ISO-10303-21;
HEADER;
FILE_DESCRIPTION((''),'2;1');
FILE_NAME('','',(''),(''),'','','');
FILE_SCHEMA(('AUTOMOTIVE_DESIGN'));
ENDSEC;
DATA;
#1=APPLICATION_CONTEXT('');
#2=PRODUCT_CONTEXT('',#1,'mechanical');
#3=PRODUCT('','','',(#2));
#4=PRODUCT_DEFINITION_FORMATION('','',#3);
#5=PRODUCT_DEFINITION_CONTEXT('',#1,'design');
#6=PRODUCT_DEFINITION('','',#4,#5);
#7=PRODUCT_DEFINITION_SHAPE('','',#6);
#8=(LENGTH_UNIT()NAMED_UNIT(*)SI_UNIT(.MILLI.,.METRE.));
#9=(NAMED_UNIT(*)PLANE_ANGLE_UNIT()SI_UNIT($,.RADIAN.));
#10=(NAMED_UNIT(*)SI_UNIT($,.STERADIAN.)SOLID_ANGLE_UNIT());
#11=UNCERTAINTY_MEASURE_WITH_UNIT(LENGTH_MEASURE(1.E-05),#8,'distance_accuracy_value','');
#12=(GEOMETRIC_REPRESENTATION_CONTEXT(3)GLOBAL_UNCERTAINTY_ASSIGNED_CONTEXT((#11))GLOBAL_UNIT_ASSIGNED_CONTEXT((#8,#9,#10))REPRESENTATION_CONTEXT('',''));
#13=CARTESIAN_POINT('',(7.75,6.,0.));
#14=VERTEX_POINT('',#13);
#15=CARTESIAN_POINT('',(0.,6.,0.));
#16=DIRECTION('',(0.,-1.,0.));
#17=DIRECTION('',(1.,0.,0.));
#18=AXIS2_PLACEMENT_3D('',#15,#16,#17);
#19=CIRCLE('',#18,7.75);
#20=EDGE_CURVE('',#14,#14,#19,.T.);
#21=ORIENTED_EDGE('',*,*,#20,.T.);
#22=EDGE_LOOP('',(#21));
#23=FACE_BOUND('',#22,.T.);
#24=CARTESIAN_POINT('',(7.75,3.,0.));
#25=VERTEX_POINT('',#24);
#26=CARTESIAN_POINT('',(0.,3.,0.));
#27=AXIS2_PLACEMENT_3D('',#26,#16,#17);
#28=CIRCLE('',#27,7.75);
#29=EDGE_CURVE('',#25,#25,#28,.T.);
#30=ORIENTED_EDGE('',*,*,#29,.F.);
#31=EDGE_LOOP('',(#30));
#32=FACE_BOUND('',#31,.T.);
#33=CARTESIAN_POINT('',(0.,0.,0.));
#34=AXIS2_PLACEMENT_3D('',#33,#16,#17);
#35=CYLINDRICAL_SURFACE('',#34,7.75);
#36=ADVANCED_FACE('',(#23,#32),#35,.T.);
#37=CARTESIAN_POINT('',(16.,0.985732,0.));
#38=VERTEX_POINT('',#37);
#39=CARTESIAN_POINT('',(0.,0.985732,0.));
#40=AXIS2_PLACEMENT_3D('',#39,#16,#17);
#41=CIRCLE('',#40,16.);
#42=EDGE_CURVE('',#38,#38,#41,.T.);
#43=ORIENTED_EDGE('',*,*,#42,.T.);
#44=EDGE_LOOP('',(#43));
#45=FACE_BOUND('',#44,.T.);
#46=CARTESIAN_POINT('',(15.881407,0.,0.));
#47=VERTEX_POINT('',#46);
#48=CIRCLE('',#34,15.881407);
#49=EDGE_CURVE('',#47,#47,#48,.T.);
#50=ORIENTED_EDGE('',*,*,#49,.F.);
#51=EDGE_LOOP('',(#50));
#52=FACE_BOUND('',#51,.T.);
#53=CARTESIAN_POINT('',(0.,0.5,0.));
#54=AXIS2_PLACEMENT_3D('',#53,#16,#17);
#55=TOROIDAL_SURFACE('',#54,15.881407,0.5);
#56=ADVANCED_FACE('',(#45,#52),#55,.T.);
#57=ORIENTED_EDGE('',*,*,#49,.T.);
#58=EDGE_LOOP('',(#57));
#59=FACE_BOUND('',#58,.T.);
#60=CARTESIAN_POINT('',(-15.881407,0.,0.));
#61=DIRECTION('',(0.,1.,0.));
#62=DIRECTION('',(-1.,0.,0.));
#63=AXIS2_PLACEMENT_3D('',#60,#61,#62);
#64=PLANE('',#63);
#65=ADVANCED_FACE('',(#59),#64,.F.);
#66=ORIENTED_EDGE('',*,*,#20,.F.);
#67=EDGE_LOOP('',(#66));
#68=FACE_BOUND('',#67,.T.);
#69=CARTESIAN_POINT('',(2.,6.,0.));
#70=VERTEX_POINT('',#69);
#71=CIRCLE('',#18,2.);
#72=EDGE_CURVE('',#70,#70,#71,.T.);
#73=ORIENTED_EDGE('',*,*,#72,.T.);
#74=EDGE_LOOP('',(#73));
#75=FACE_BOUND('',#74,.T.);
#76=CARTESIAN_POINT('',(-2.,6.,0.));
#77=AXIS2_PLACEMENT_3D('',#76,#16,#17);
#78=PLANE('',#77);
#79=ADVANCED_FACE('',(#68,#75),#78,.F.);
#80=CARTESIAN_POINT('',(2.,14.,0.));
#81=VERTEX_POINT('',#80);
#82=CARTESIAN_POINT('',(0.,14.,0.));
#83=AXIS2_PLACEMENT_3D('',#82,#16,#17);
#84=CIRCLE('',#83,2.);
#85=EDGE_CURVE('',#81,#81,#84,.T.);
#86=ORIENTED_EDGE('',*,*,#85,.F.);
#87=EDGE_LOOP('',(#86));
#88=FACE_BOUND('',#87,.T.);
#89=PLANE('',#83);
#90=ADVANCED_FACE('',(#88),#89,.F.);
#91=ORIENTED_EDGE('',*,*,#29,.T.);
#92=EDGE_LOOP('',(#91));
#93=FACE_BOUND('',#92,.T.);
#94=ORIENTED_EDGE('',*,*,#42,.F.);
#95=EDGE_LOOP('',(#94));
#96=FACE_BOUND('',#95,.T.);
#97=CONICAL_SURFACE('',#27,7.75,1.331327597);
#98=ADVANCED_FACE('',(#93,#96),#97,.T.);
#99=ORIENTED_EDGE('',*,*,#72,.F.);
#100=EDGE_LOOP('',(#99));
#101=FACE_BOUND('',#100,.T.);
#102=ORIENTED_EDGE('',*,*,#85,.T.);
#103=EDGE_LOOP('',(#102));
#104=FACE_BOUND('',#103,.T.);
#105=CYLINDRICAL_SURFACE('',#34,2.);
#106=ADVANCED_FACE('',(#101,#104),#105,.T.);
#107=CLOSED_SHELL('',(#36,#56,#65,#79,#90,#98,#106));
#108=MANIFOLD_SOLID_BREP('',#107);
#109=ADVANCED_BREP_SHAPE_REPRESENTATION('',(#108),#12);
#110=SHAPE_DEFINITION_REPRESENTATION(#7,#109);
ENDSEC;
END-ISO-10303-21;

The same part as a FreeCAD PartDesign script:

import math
import FreeCAD as App
import Part
import Sketcher

doc = App.newDocument("Part")
body = doc.addObject("PartDesign::Body", "Body")

sketch1 = body.newObject("Sketcher::SketchObject", "Sketch")
sketch1.AttachmentSupport = (doc.getObject("XY_Plane"), [""])
sketch1.MapMode = "FlatFace"
sketch1.addGeometry([
    Part.LineSegment(App.Vector(0, 14, 0), App.Vector(-2, 14, 0)),
    Part.LineSegment(App.Vector(-2, 14, 0), App.Vector(-2, 6, 0)),
    Part.LineSegment(App.Vector(-2, 6, 0), App.Vector(-7.8, 6, 0)),
    Part.LineSegment(App.Vector(-7.8, 6, 0), App.Vector(-7.8, 3, 0)),
    Part.LineSegment(App.Vector(-7.8, 3, 0), App.Vector(-16, 1, 0)),
    Part.ArcOfCircle(Part.Circle(App.Vector(-15.9, 0.5, 0), App.Vector(0, 0, 1), 0.5), math.radians(104), math.radians(270)),
    Part.LineSegment(App.Vector(-15.9, 0, 0), App.Vector(0, 0, 0)),
    Part.LineSegment(App.Vector(0, 0, 0), App.Vector(0, 14, 0)),
], False)
sketch1.addConstraint([
    Sketcher.Constraint("Coincident", 0, 2, 1, 1),
    Sketcher.Constraint("Coincident", 1, 2, 2, 1),
    Sketcher.Constraint("Coincident", 2, 2, 3, 1),
    Sketcher.Constraint("Coincident", 3, 2, 4, 1),
    Sketcher.Constraint("Tangent", 4, 2, 5, 1),
    Sketcher.Constraint("Tangent", 5, 2, 6, 1),
    Sketcher.Constraint("Coincident", 6, 2, 7, 1),
    Sketcher.Constraint("Coincident", 7, 2, 0, 1),
    Sketcher.Constraint("Horizontal", 0),
    Sketcher.Constraint("Vertical", 1),
    Sketcher.Constraint("Horizontal", 2),
    Sketcher.Constraint("Vertical", 3),
    Sketcher.Constraint("Horizontal", 6),
    Sketcher.Constraint("Vertical", 7),
    Sketcher.Constraint("Coincident", 6, 2, -1, 1),
    Sketcher.Constraint("Radius", 5, 0.5),
    Sketcher.Constraint("DistanceX", 0, 2, 0, 1, 2.0),
    Sketcher.Constraint("DistanceY", 1, 2, 1, 1, 8.0),
    Sketcher.Constraint("DistanceY", 3, 2, 3, 1, 3.0),
    Sketcher.Constraint("DistanceY", 7, 1, 7, 2, 14.0),
    Sketcher.Constraint("DistanceX", 4, 2, -1, 1, 16.0),
    Sketcher.Constraint("DistanceX", 2, 2, 2, 1, 5.75),
])
revolution = body.newObject("PartDesign::Revolution", "Revolution")
revolution.Profile = sketch1
revolution.ReferenceAxis = (sketch1, ["V_Axis"])
revolution.Angle = 360

doc.recompute()
